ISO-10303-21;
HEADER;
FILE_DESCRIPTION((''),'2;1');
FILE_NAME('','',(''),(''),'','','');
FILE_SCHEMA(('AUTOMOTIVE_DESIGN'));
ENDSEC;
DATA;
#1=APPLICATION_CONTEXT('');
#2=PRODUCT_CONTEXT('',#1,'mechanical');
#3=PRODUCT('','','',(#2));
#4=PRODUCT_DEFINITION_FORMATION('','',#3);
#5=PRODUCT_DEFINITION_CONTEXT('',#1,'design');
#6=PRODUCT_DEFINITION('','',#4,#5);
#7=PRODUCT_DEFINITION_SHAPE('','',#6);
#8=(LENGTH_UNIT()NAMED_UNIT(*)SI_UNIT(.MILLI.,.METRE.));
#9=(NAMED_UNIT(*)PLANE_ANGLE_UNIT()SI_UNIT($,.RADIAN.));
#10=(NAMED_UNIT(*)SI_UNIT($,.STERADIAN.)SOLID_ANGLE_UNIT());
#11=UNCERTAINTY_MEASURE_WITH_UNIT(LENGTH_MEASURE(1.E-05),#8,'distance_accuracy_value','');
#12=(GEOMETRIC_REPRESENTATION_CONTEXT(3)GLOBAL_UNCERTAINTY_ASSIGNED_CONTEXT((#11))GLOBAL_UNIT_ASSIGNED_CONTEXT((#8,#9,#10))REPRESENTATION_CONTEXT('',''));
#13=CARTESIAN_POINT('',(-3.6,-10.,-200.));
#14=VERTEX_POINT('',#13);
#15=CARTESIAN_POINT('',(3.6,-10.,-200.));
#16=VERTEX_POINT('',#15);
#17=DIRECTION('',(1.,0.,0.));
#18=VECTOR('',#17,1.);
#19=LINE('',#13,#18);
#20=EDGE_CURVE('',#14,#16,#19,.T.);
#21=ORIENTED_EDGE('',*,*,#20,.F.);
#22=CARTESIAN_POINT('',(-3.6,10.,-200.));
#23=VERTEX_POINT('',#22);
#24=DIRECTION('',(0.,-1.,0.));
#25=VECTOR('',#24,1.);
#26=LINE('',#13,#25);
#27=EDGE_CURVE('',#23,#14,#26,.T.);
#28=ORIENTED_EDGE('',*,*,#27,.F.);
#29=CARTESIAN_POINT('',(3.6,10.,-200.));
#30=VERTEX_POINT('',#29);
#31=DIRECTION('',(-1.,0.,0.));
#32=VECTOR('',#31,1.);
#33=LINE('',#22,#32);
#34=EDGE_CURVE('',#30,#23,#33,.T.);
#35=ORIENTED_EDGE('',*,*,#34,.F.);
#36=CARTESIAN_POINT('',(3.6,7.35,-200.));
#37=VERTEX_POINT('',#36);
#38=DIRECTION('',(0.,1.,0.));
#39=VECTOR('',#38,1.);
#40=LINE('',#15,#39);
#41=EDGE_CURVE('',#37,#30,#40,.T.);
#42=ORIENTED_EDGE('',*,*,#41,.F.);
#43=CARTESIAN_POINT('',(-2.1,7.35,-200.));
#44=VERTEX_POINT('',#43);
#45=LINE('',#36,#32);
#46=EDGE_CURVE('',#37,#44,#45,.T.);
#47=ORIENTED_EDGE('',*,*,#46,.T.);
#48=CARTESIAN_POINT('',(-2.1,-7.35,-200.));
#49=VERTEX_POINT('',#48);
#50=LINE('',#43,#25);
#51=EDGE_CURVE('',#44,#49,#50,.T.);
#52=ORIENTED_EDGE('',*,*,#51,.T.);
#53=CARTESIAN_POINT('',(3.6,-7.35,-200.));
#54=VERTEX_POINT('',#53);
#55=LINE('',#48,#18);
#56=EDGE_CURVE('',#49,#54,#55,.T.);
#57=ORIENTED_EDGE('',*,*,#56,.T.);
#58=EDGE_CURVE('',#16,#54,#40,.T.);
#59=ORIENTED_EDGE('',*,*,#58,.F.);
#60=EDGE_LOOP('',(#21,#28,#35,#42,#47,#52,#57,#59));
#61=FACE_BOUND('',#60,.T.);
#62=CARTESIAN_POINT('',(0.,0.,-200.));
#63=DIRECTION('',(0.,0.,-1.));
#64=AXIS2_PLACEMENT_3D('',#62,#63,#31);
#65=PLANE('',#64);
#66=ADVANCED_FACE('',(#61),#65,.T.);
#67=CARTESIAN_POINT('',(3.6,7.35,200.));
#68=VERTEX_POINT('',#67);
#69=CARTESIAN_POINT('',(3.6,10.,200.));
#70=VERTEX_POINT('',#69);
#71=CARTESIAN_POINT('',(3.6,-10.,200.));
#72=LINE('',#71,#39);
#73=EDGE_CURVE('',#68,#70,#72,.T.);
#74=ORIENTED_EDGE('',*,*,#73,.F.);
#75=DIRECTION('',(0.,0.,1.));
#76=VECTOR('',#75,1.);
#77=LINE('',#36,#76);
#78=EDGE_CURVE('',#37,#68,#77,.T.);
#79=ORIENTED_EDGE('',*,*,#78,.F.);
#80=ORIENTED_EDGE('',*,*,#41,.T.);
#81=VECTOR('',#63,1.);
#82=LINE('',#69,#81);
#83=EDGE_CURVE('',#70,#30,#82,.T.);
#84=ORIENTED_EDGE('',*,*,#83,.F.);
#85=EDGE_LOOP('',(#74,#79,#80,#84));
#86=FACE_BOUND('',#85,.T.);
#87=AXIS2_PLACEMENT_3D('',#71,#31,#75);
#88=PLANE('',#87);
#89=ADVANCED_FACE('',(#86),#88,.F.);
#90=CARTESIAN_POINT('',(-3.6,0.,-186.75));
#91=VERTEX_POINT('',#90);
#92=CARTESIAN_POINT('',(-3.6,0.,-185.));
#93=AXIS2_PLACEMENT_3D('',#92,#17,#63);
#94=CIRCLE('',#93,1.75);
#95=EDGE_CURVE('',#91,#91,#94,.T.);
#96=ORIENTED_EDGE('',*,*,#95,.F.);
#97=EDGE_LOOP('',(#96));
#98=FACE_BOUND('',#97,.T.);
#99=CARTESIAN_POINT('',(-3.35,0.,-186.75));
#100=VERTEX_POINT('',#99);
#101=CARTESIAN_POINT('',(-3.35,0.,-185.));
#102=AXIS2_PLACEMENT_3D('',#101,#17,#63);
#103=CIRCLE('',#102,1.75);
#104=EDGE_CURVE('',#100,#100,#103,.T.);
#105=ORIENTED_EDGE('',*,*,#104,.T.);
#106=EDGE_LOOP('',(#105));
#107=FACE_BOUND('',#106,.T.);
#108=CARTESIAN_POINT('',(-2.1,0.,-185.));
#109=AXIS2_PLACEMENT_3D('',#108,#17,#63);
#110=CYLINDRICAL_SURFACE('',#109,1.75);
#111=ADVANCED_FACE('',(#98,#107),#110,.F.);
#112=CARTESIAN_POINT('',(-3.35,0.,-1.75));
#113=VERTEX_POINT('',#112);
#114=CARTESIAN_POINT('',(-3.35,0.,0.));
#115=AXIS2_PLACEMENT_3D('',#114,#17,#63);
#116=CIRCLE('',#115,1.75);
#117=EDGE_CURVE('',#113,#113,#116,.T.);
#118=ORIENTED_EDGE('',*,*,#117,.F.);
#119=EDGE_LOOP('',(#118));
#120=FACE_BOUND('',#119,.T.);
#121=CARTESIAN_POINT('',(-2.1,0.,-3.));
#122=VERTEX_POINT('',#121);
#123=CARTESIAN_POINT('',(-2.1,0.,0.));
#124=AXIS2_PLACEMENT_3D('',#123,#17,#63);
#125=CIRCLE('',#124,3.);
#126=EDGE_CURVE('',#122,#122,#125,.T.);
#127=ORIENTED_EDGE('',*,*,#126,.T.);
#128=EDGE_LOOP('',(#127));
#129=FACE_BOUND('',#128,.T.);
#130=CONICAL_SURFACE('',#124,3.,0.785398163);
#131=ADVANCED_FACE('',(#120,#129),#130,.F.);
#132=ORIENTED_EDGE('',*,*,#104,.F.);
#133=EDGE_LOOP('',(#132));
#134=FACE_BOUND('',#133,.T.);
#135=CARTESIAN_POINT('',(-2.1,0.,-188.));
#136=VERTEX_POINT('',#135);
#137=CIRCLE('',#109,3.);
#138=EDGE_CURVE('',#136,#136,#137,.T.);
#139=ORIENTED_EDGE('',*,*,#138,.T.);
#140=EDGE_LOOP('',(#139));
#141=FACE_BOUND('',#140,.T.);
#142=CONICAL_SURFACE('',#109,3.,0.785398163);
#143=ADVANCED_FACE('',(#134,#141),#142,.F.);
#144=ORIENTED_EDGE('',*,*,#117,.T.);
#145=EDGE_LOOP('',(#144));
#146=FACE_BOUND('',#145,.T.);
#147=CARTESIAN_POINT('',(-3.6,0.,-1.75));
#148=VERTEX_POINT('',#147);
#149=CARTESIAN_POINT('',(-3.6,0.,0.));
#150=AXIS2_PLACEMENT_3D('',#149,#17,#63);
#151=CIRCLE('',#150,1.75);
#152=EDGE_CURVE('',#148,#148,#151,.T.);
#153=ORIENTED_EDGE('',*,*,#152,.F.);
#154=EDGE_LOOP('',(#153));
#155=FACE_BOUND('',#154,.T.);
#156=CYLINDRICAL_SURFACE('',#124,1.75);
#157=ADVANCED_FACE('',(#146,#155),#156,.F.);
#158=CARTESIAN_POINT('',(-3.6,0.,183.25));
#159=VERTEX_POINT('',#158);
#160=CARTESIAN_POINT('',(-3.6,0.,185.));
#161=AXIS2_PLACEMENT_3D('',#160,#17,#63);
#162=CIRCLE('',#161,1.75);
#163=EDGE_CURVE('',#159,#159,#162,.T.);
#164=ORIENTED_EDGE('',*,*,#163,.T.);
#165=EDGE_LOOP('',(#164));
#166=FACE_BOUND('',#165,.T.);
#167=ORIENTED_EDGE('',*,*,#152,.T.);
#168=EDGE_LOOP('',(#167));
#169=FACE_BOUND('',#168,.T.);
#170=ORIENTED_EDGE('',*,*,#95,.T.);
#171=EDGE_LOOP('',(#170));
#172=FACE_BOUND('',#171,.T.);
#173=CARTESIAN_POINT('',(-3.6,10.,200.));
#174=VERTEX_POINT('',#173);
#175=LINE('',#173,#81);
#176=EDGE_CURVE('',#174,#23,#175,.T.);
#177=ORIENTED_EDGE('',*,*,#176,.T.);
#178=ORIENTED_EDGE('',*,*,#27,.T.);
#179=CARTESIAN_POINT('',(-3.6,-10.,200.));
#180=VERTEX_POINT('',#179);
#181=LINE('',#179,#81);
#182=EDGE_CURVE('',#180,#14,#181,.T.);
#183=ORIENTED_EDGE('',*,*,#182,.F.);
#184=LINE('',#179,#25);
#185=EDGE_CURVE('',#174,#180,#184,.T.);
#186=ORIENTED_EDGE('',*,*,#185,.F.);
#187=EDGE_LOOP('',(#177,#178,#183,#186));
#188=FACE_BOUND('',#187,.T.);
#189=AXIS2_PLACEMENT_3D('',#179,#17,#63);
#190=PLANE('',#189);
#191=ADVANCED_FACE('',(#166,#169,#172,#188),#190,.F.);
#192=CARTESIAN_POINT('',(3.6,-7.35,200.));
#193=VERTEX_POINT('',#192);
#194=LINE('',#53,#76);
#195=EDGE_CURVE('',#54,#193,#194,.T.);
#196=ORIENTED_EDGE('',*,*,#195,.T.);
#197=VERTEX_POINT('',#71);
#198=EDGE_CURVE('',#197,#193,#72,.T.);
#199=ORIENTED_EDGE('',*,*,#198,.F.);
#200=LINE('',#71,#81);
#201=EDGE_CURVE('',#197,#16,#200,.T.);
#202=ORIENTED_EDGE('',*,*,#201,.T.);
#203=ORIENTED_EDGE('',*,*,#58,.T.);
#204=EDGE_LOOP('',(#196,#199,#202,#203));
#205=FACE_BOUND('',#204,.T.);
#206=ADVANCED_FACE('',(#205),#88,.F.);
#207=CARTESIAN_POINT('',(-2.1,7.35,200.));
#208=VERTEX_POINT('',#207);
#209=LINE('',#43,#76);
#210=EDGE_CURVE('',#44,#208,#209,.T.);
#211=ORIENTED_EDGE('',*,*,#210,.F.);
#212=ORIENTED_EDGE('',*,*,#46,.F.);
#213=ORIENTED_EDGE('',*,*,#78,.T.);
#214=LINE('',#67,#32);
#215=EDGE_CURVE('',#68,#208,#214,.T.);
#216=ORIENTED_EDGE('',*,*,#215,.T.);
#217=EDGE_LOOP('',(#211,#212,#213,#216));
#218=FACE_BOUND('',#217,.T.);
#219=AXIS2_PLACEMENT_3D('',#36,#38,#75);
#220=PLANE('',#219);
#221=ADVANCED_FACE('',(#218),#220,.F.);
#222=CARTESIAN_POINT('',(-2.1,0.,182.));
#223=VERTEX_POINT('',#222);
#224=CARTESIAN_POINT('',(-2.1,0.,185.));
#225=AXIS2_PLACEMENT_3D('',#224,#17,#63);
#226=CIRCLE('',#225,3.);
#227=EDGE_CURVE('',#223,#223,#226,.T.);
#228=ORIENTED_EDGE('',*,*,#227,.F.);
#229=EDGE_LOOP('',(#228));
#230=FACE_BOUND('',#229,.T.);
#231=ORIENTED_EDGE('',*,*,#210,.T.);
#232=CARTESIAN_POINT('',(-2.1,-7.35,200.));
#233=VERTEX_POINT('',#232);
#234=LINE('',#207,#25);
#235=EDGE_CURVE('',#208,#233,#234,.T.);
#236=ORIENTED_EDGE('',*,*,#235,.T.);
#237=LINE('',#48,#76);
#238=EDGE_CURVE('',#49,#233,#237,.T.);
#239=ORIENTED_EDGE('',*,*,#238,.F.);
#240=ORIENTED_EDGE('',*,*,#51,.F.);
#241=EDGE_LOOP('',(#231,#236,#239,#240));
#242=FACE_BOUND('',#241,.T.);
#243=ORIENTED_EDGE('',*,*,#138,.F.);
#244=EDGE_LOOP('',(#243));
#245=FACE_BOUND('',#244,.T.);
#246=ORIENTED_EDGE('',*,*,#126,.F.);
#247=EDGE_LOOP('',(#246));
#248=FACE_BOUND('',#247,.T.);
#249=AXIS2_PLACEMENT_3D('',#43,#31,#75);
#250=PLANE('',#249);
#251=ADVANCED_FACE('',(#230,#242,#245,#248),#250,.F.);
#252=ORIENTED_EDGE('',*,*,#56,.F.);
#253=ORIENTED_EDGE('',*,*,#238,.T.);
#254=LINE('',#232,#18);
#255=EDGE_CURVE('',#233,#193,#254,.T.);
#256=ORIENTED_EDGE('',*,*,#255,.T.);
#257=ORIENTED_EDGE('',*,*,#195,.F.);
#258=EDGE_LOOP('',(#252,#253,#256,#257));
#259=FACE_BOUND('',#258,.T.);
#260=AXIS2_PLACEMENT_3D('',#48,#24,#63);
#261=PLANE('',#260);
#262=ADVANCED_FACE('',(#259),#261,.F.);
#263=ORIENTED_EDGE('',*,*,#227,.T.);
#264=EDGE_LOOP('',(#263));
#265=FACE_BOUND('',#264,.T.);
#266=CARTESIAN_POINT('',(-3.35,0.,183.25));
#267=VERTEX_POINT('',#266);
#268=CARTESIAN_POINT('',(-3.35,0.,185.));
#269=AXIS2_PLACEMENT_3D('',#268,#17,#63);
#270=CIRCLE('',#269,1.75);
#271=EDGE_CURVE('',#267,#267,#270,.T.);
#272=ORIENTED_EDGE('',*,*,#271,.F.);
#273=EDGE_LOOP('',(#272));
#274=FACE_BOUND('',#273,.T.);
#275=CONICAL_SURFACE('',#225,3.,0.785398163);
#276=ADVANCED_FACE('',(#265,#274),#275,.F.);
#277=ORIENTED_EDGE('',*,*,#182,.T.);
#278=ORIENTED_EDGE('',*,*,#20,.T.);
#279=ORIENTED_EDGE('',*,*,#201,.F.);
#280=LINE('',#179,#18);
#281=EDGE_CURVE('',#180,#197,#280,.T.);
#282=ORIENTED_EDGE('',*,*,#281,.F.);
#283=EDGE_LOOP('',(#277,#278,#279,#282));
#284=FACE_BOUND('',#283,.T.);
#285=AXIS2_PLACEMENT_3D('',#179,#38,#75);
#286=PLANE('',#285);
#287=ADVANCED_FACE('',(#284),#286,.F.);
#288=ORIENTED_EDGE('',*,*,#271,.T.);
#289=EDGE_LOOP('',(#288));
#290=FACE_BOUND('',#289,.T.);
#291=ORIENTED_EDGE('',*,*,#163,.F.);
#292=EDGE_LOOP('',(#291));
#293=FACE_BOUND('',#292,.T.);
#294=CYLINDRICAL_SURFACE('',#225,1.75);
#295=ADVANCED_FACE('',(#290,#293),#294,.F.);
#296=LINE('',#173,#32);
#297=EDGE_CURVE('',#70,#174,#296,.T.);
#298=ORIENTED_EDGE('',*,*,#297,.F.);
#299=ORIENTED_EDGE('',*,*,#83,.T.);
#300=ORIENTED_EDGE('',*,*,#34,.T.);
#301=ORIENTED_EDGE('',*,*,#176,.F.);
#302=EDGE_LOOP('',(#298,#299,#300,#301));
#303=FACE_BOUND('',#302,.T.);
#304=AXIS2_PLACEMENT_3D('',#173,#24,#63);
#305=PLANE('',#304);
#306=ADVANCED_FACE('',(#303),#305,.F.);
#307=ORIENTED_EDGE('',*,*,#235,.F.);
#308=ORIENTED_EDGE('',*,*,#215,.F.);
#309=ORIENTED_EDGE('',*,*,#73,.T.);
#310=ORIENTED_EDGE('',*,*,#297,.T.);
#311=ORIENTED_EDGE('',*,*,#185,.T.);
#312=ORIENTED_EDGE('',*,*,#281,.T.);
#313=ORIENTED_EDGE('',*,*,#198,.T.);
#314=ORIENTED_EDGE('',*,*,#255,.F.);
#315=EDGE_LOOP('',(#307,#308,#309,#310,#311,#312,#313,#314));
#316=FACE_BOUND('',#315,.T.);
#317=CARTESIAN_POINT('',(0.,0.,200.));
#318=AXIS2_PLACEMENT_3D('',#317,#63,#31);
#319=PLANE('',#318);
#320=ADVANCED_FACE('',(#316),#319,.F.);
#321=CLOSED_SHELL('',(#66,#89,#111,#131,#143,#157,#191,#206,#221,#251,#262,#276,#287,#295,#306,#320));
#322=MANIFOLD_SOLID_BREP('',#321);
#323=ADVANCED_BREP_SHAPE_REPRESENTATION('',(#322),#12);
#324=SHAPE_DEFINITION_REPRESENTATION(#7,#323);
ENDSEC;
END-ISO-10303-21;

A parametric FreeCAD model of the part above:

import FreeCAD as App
import Part
import Sketcher
from FreeCAD import Vector
Q = App.Units.Quantity

doc = App.newDocument("Part")
body = doc.addObject("PartDesign::Body", "Body")

sketch1 = body.newObject("Sketcher::SketchObject", "Sketch")
sketch1.AttachmentSupport = (doc.getObject("XY_Plane"), [""])
sketch1.MapMode = "FlatFace"
sketch1.addGeometry([
    Part.LineSegment(Vector(-3.6, 10, 0), Vector(-3.6, -10, 0)),
    Part.LineSegment(Vector(-3.6, -10, 0), Vector(3.6, -10, 0)),
    Part.LineSegment(Vector(3.6, -10, 0), Vector(3.6, 10, 0)),
    Part.LineSegment(Vector(3.6, 10, 0), Vector(-3.6, 10, 0)),
], False)
sketch1.addConstraint([
    Sketcher.Constraint("Coincident", 0, 2, 1, 1),
    Sketcher.Constraint("Coincident", 1, 2, 2, 1),
    Sketcher.Constraint("Coincident", 2, 2, 3, 1),
    Sketcher.Constraint("Coincident", 3, 2, 0, 1),
    Sketcher.Constraint("Vertical", 0),
    Sketcher.Constraint("Horizontal", 1),
    Sketcher.Constraint("Vertical", 2),
    Sketcher.Constraint("Horizontal", 3),
    Sketcher.Constraint("Symmetric", 0, 2, 2, 2, -1, 1),
    Sketcher.Constraint("DistanceY", 0, 2, 0, 1, 20.0),
    Sketcher.Constraint("DistanceX", 1, 1, 1, 2, 7.2),
])
pad1 = body.newObject("PartDesign::Pad", "Pad")
pad1.Profile = sketch1
pad1.Length = 400
pad1.Midplane = True

sketch2 = body.newObject("Sketcher::SketchObject", "Sketch001")
sketch2.AttachmentSupport = (doc.getObject("XY_Plane"), [""])
sketch2.MapMode = "FlatFace"
sketch2.addGeometry([
    Part.LineSegment(Vector(-2.1, 7.35, 0), Vector(-2.1, -7.35, 0)),
    Part.LineSegment(Vector(-2.1, -7.35, 0), Vector(3.6, -7.35, 0)),
    Part.LineSegment(Vector(3.6, -7.35, 0), Vector(3.6, 7.35, 0)),
    Part.LineSegment(Vector(3.6, 7.35, 0), Vector(-2.1, 7.35, 0)),
], False)
sketch2.addConstraint([
    Sketcher.Constraint("Coincident", 0, 2, 1, 1),
    Sketcher.Constraint("Coincident", 1, 2, 2, 1),
    Sketcher.Constraint("Coincident", 2, 2, 3, 1),
    Sketcher.Constraint("Coincident", 3, 2, 0, 1),
    Sketcher.Constraint("Vertical", 0),
    Sketcher.Constraint("Horizontal", 1),
    Sketcher.Constraint("Vertical", 2),
    Sketcher.Constraint("Horizontal", 3),
    Sketcher.Constraint("DistanceX", 1, 1, 1, 2, 5.7),
    Sketcher.Constraint("DistanceY", 0, 2, 0, 1, 14.7),
    Sketcher.Constraint("DistanceX", 0, 2, -1, 1, 2.1),
    Sketcher.Constraint("DistanceY", 0, 2, -1, 1, 7.35),
])
pocket1 = body.newObject("PartDesign::Pocket", "Pocket")
pocket1.Profile = sketch2
pocket1.Length = 400
pocket1.Midplane = True

sketch3 = body.newObject("Sketcher::SketchObject", "Sketch002")
sketch3.AttachmentSupport = (doc.getObject("XY_Plane"), [""])
sketch3.MapMode = "FlatFace"
sketch3.addGeometry([
    Part.LineSegment(Vector(-3.35, 1.75, 0), Vector(-3.6, 1.75, 0)),
    Part.LineSegment(Vector(-3.6, 1.75, 0), Vector(-3.6, 0, 0)),
    Part.LineSegment(Vector(-3.6, 0, 0), Vector(-2.1, 0, 0)),
    Part.LineSegment(Vector(-2.1, 0, 0), Vector(-2.1, 3, 0)),
    Part.LineSegment(Vector(-2.1, 3, 0), Vector(-3.35, 1.75, 0)),
], False)
sketch3.addConstraint([
    Sketcher.Constraint("Coincident", 0, 2, 1, 1),
    Sketcher.Constraint("Coincident", 1, 2, 2, 1),
    Sketcher.Constraint("Coincident", 2, 2, 3, 1),
    Sketcher.Constraint("Coincident", 3, 2, 4, 1),
    Sketcher.Constraint("Coincident", 4, 2, 0, 1),
    Sketcher.Constraint("Horizontal", 0),
    Sketcher.Constraint("Vertical", 1),
    Sketcher.Constraint("Horizontal", 2),
    Sketcher.Constraint("Vertical", 3),
    Sketcher.Constraint("PointOnObject", 1, 2, -1),
    Sketcher.Constraint("DistanceY", 3, 1, 3, 2, 3.0),
    Sketcher.Constraint("Angle", 4, Q("-135 deg")),
    Sketcher.Constraint("DistanceX", 2, 1, 2, 2, 1.5),
    Sketcher.Constraint("DistanceX", 0, 2, 0, 1, 0.25),
    Sketcher.Constraint("DistanceX", 0, 2, -1, 1, 3.6),
])
groove = body.newObject("PartDesign::Groove", "Groove")
groove.Profile = sketch3
groove.ReferenceAxis = (sketch3, ["H_Axis"])
groove.Angle = 360
doc.recompute()

linearpattern = body.newObject("PartDesign::LinearPattern", "LinearPattern")
linearpattern.Originals = [groove]
linearpattern.Direction = (doc.getObject("Z_Axis"), [""])
linearpattern.Mode = "offset"
linearpattern.Offset = 185
linearpattern.Occurrences = 2
linearpattern.Reversed = True
body.Tip = linearpattern
doc.recompute()

linearpattern2 = body.newObject("PartDesign::LinearPattern", "LinearPattern001")
linearpattern2.Originals = [groove]
linearpattern2.Direction = (doc.getObject("Z_Axis"), [""])
linearpattern2.Mode = "offset"
linearpattern2.Offset = 185
linearpattern2.Occurrences = 2
body.Tip = linearpattern2

doc.recompute()
